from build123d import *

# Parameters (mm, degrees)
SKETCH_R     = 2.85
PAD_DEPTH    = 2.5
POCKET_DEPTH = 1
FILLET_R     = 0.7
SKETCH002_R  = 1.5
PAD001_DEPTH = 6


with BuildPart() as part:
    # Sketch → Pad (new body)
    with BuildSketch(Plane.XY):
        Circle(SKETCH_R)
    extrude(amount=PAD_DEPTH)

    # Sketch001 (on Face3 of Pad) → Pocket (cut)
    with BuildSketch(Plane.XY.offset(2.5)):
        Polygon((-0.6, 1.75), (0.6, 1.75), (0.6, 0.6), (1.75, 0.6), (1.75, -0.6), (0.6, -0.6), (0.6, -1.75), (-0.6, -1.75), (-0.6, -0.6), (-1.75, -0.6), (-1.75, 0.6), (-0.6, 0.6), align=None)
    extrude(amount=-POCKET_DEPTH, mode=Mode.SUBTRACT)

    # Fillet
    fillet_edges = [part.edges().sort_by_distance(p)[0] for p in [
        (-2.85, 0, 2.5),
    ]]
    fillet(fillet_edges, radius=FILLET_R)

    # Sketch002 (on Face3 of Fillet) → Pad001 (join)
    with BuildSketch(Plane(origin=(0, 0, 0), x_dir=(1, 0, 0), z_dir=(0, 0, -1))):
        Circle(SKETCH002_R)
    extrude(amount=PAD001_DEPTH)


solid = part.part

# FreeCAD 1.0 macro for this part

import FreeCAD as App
import Part
import Sketcher

V = App.Vector
Q = App.Units.Quantity


def edges_at(feature, points):
    """Names of the edges that pass closest to the given points."""
    edges = feature.Shape.Edges
    near = lambda p: min(range(len(edges)), key=lambda i: edges[i].distToShape(Part.Vertex(*p))[0])
    return sorted({f"Edge{near(p) + 1}" for p in points})


def add_polygon(sketch, points):
    """Adds a closed chain of lines whose ends are joined by coincident constraints."""
    first, n = sketch.GeometryCount, len(points)
    for a, b in zip(points, points[1:] + points[:1]):
        sketch.addGeometry(Part.LineSegment(App.Vector(*a, 0), App.Vector(*b, 0)), False)
    for i in range(n):
        sketch.addConstraint(Sketcher.Constraint("Coincident", first + i, 2, first + (i + 1) % n, 1))

doc = App.newDocument("Part")
body = doc.addObject("PartDesign::Body", "Body")

# Sketch on XY plane
sketch1 = doc.addObject("Sketcher::SketchObject", "Sketch")
body.addObject(sketch1)
sketch1.AttachmentSupport = (doc.XY_Plane, [""])
sketch1.MapMode = "FlatFace"
sketch1.addGeometry(Part.Circle(V(0, 0, 0), V(0, 0, 1), 2.85), False)
sketch1.addConstraint([
    Sketcher.Constraint("Coincident", 0, 3, -1, 1),
    Sketcher.Constraint("Diameter", 0, Q("5.7 mm")),
])
pad1 = doc.addObject("PartDesign::Pad", "Pad")
body.addObject(pad1)
pad1.Profile = sketch1
pad1.Length = 2.5

# Sketch on XY plane
sketch2 = doc.addObject("Sketcher::SketchObject", "Sketch001")
body.addObject(sketch2)
sketch2.AttachmentSupport = (doc.XY_Plane, [""])
sketch2.MapMode = "FlatFace"
sketch2.AttachmentOffset = App.Placement(V(0, 0, 2.5), App.Rotation())
add_polygon(sketch2, [(0.6, 1.75), (-0.6, 1.75), (-0.6, 0.6), (-1.75, 0.6), (-1.75, -0.6), (-0.6, -0.6), (-0.6, -1.75), (0.6, -1.75), (0.6, -0.6), (1.75, -0.6), (1.75, 0.6), (0.6, 0.6)])  # lines 0-11
sketch2.addConstraint([
    Sketcher.Constraint("Horizontal", 0),
    Sketcher.Constraint("Vertical", 1),
    Sketcher.Constraint("Horizontal", 2),
    Sketcher.Constraint("Vertical", 3),
    Sketcher.Constraint("Horizontal", 4),
    Sketcher.Constraint("Vertical", 5),
    Sketcher.Constraint("Horizontal", 6),
    Sketcher.Constraint("Vertical", 7),
    Sketcher.Constraint("Horizontal", 8),
    Sketcher.Constraint("Vertical", 9),
    Sketcher.Constraint("Horizontal", 10),
    Sketcher.Constraint("Vertical", 11),
    Sketcher.Constraint("Symmetric", 0, 2, 6, 2, -1, 1),
    Sketcher.Constraint("Symmetric", 2, 2, 8, 2, -1, 1),
    Sketcher.Constraint("Symmetric", 4, 2, 10, 2, -1, 1),
    Sketcher.Constraint("Symmetric", 4, 2, 7, 2, -2),
    Sketcher.Constraint("Equal", 10, 1),
    Sketcher.Constraint("Equal", 6, 3),
    Sketcher.Constraint("DistanceX", 0, 2, 0, 1, Q("1.2 mm")),
    Sketcher.Constraint("DistanceX", 2, 2, 2, 1, Q("1.15 mm")),
])
pocket1 = doc.addObject("PartDesign::Pocket", "Pocket")
body.addObject(pocket1)
pocket1.Profile = sketch2
pocket1.Length = 1
doc.recompute()

fillet = doc.addObject("PartDesign::Fillet", "Fillet")
body.addObject(fillet)
fillet.Base = (pocket1, edges_at(pocket1, [(-2.85, 0, 2.5)]))
fillet.Radius = 0.7

# Sketch on XY plane
sketch3 = doc.addObject("Sketcher::SketchObject", "Sketch002")
body.addObject(sketch3)
sketch3.AttachmentSupport = (doc.XY_Plane, [""])
sketch3.MapMode = "FlatFace"
sketch3.addGeometry(Part.Circle(V(0, 0, 0), V(0, 0, 1), 1.5), False)
sketch3.addConstraint([
    Sketcher.Constraint("Coincident", 0, 3, -1, 1),
    Sketcher.Constraint("Diameter", 0, Q("3 mm")),
])
pad2 = doc.addObject("PartDesign::Pad", "Pad001")
body.addObject(pad2)
pad2.Profile = sketch3
pad2.Length = 6
pad2.Reversed = True

doc.recompute()
